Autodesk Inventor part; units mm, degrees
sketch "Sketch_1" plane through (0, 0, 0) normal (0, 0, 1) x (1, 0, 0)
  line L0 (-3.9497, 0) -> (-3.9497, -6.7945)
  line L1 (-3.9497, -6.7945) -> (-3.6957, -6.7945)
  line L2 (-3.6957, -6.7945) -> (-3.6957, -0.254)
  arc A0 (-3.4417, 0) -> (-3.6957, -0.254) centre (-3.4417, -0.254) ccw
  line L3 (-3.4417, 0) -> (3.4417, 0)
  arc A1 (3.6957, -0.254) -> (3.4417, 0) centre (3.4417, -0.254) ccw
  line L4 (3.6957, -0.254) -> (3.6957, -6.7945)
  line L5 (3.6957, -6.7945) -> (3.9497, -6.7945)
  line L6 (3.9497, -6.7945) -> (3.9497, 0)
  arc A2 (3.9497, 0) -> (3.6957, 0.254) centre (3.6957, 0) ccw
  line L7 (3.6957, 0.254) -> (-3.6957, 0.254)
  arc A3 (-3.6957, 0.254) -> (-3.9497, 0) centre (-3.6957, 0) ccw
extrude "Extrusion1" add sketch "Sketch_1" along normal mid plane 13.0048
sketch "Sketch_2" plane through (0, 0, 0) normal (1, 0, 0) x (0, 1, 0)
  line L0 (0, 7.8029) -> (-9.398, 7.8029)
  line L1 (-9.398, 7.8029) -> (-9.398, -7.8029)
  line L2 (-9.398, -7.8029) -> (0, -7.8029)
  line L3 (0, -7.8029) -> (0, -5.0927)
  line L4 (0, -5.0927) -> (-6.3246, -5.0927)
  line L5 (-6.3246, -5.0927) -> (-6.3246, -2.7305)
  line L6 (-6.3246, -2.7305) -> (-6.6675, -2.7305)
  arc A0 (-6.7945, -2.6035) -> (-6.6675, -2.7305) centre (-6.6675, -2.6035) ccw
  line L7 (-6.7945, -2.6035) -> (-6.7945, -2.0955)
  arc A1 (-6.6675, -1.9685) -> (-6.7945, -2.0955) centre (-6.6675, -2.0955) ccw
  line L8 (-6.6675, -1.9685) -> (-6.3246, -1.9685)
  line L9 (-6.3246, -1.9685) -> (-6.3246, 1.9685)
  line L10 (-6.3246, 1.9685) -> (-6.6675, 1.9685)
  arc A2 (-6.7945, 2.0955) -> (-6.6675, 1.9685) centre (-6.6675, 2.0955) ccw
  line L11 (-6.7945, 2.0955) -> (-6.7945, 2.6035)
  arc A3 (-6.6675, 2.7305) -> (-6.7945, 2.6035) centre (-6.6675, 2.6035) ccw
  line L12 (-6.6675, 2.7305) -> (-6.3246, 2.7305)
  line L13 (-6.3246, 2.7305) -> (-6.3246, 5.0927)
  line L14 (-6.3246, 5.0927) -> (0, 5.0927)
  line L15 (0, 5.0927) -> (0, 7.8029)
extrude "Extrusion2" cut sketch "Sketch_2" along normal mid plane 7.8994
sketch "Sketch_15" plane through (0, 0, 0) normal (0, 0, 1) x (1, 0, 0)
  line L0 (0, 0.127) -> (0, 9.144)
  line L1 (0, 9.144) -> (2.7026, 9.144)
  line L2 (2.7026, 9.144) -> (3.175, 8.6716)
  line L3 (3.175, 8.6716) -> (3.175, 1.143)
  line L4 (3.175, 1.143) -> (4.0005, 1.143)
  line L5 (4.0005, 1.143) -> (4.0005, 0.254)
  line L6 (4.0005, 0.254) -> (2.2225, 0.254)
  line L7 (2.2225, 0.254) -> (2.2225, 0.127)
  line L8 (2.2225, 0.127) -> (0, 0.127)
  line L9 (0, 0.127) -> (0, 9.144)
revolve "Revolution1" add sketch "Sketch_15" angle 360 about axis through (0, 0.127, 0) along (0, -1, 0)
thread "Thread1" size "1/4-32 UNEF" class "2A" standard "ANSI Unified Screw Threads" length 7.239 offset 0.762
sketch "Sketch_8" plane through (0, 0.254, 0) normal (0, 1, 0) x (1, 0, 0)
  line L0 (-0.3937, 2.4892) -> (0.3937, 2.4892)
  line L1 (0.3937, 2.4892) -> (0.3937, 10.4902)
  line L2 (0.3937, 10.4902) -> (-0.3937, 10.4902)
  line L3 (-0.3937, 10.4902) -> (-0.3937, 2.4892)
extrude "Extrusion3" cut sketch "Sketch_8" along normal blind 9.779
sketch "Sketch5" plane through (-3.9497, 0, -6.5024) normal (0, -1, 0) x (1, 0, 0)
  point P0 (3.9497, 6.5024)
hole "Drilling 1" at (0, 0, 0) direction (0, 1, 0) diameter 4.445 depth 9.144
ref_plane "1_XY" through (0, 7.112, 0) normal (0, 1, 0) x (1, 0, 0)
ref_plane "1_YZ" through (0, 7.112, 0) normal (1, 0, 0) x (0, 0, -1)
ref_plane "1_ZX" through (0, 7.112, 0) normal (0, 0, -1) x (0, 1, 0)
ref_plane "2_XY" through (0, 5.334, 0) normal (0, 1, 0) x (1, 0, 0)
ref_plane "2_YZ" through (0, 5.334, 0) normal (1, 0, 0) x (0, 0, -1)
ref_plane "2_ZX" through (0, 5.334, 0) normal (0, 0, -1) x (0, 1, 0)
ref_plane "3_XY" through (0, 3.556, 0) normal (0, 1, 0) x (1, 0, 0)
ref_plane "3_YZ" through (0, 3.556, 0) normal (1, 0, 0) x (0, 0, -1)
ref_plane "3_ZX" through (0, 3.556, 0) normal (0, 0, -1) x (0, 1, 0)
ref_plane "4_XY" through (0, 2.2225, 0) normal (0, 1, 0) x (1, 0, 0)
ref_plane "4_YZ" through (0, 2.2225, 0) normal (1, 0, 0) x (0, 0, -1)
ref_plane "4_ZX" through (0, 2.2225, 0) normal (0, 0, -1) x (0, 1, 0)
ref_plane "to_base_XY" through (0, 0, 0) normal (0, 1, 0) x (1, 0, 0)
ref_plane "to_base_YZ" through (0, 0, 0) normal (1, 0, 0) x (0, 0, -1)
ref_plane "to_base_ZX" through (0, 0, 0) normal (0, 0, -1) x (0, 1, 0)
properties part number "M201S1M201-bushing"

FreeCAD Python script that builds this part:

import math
import FreeCAD as App
import Part
import Sketcher
from FreeCAD import Vector
Q = App.Units.Quantity

doc = App.newDocument("Part")
body = doc.addObject("PartDesign::Body", "Body")

# Sketch on XY plane
sketch1 = doc.addObject("Sketcher::SketchObject", "Sketch")
body.addObject(sketch1)
sketch1.AttachmentSupport = (doc.XY_Plane, [""])
sketch1.MapMode = "FlatFace"
sketch1.addGeometry([
    Part.ArcOfCircle(Part.Circle(Vector(-3.7, 0, 0), Vector(0, 0, 1), 0.25), math.radians(90), math.radians(180)),  # 0
    Part.LineSegment(Vector(-3.95, 0, 0), Vector(-3.95, -6.79, 0)),  # 1
    Part.LineSegment(Vector(-3.95, -6.79, 0), Vector(-3.7, -6.79, 0)),  # 2
    Part.LineSegment(Vector(-3.7, -6.79, 0), Vector(-3.7, -0.25, 0)),  # 3
    Part.ArcOfCircle(Part.Circle(Vector(-3.44, -0.25, 0), Vector(0, 0, 1), 0.25), math.radians(90), math.radians(180)),  # 4
    Part.LineSegment(Vector(-3.44, 0, 0), Vector(3.44, 0, 0)),  # 5
    Part.ArcOfCircle(Part.Circle(Vector(3.44, -0.25, 0), Vector(0, 0, 1), 0.25), math.radians(0), math.radians(90)),  # 6
    Part.LineSegment(Vector(3.7, -0.25, 0), Vector(3.7, -6.79, 0)),  # 7
    Part.LineSegment(Vector(3.7, -6.79, 0), Vector(3.95, -6.79, 0)),  # 8
    Part.LineSegment(Vector(3.95, -6.79, 0), Vector(3.95, 0, 0)),  # 9
    Part.ArcOfCircle(Part.Circle(Vector(3.7, 0, 0), Vector(0, 0, 1), 0.25), math.radians(0), math.radians(90)),  # 10
    Part.LineSegment(Vector(3.7, 0.25, 0), Vector(-3.7, 0.25, 0)),  # 11
], False)
sketch1.addConstraint([
    Sketcher.Constraint("Tangent", 0, 2, 1, 1),
    Sketcher.Constraint("Coincident", 1, 2, 2, 1),
    Sketcher.Constraint("Coincident", 2, 2, 3, 1),
    Sketcher.Constraint("Tangent", 3, 2, 4, 2),
    Sketcher.Constraint("Tangent", 4, 1, 5, 1),
    Sketcher.Constraint("Tangent", 5, 2, 6, 2),
    Sketcher.Constraint("Tangent", 6, 1, 7, 1),
    Sketcher.Constraint("Coincident", 7, 2, 8, 1),
    Sketcher.Constraint("Coincident", 8, 2, 9, 1),
    Sketcher.Constraint("Tangent", 9, 2, 10, 1),
    Sketcher.Constraint("Tangent", 10, 2, 11, 1),
    Sketcher.Constraint("Tangent", 11, 2, 0, 1),
    Sketcher.Constraint("Vertical", 1),
    Sketcher.Constraint("Horizontal", 2),
    Sketcher.Constraint("Vertical", 3),
    Sketcher.Constraint("Horizontal", 5),
    Sketcher.Constraint("Vertical", 7),
    Sketcher.Constraint("Horizontal", 8),
    Sketcher.Constraint("Vertical", 9),
    Sketcher.Constraint("Horizontal", 11),
    Sketcher.Constraint("Equal", 0, 4),
    Sketcher.Constraint("Equal", 4, 6),
    Sketcher.Constraint("Equal", 6, 10),
    Sketcher.Constraint("Symmetric", 0, 3, 10, 3, -1, 1),
    Sketcher.Constraint("Symmetric", 4, 1, 5, 2, -1, 1),
    Sketcher.Constraint("Horizontal", 2, 2, 7, 2),
    Sketcher.Constraint("Vertical", 0, 3, 2, 2),
    Sketcher.Constraint("Radius", 0, Q("0.01 in")),
    Sketcher.Constraint("DistanceX", 5, 1, 5, 2, Q("0.271 in")),
    Sketcher.Constraint("DistanceY", 1, 2, 1, 1, Q("0.2675 in")),
])
pad1 = doc.addObject("PartDesign::Pad", "Pad")
body.addObject(pad1)
pad1.Profile = sketch1
pad1.Length = Q("0.512 in")
pad1.Midplane = True

# Sketch on YZ plane
sketch2 = doc.addObject("Sketcher::SketchObject", "Sketch001")
body.addObject(sketch2)
sketch2.AttachmentSupport = (doc.YZ_Plane, [""])
sketch2.MapMode = "FlatFace"
sketch2.addGeometry([
    Part.LineSegment(Vector(0, 5.09, 0), Vector(0, 7.8, 0)),  # 0
    Part.LineSegment(Vector(0, 7.8, 0), Vector(-9.4, 7.8, 0)),  # 1
    Part.LineSegment(Vector(-9.4, 7.8, 0), Vector(-9.4, -7.8, 0)),  # 2
    Part.LineSegment(Vector(-9.4, -7.8, 0), Vector(0, -7.8, 0)),  # 3
    Part.LineSegment(Vector(0, -7.8, 0), Vector(0, -5.09, 0)),  # 4
    Part.LineSegment(Vector(0, -5.09, 0), Vector(-6.32, -5.09, 0)),  # 5
    Part.LineSegment(Vector(-6.32, -5.09, 0), Vector(-6.32, -2.73, 0)),  # 6
    Part.LineSegment(Vector(-6.32, -2.73, 0), Vector(-6.67, -2.73, 0)),  # 7
    Part.ArcOfCircle(Part.Circle(Vector(-6.67, -2.6, 0), Vector(0, 0, 1), 0.13), math.radians(180), math.radians(270)),  # 8
    Part.LineSegment(Vector(-6.79, -2.6, 0), Vector(-6.79, -2.1, 0)),  # 9
    Part.ArcOfCircle(Part.Circle(Vector(-6.67, -2.1, 0), Vector(0, 0, 1), 0.13), math.radians(90), math.radians(180)),  # 10
    Part.LineSegment(Vector(-6.67, -1.97, 0), Vector(-6.32, -1.97, 0)),  # 11
    Part.LineSegment(Vector(-6.32, -1.97, 0), Vector(-6.32, 1.97, 0)),  # 12
    Part.LineSegment(Vector(-6.32, 1.97, 0), Vector(-6.67, 1.97, 0)),  # 13
    Part.ArcOfCircle(Part.Circle(Vector(-6.67, 2.1, 0), Vector(0, 0, 1), 0.13), math.radians(180), math.radians(270)),  # 14
    Part.LineSegment(Vector(-6.79, 2.1, 0), Vector(-6.79, 2.6, 0)),  # 15
    Part.ArcOfCircle(Part.Circle(Vector(-6.67, 2.6, 0), Vector(0, 0, 1), 0.13), math.radians(90), math.radians(180)),  # 16
    Part.LineSegment(Vector(-6.67, 2.73, 0), Vector(-6.32, 2.73, 0)),  # 17
    Part.LineSegment(Vector(-6.32, 2.73, 0), Vector(-6.32, 5.09, 0)),  # 18
    Part.LineSegment(Vector(-6.32, 5.09, 0), Vector(0, 5.09, 0)),  # 19
], False)
sketch2.addConstraint([
    Sketcher.Constraint("Coincident", 0, 2, 1, 1),
    Sketcher.Constraint("Coincident", 1, 2, 2, 1),
    Sketcher.Constraint("Coincident", 2, 2, 3, 1),
    Sketcher.Constraint("Coincident", 3, 2, 4, 1),
    Sketcher.Constraint("Coincident", 4, 2, 5, 1),
    Sketcher.Constraint("Coincident", 5, 2, 6, 1),
    Sketcher.Constraint("Coincident", 6, 2, 7, 1),
    Sketcher.Constraint("Tangent", 7, 2, 8, 2),
    Sketcher.Constraint("Tangent", 8, 1, 9, 1),
    Sketcher.Constraint("Tangent", 9, 2, 10, 2),
    Sketcher.Constraint("Tangent", 10, 1, 11, 1),
    Sketcher.Constraint("Coincident", 11, 2, 12, 1),
    Sketcher.Constraint("Coincident", 12, 2, 13, 1),
    Sketcher.Constraint("Tangent", 13, 2, 14, 2),
    Sketcher.Constraint("Tangent", 14, 1, 15, 1),
    Sketcher.Constraint("Tangent", 15, 2, 16, 2),
    Sketcher.Constraint("Tangent", 16, 1, 17, 1),
    Sketcher.Constraint("Coincident", 17, 2, 18, 1),
    Sketcher.Constraint("Coincident", 18, 2, 19, 1),
    Sketcher.Constraint("Coincident", 19, 2, 0, 1),
    Sketcher.Constraint("Vertical", 0),
    Sketcher.Constraint("Horizontal", 1),
    Sketcher.Constraint("Vertical", 2),
    Sketcher.Constraint("Horizontal", 3),
    Sketcher.Constraint("Vertical", 4),
    Sketcher.Constraint("Horizontal", 5),
    Sketcher.Constraint("Vertical", 6),
    Sketcher.Constraint("Horizontal", 7),
    Sketcher.Constraint("Vertical", 9),
    Sketcher.Constraint("Horizontal", 11),
    Sketcher.Constraint("Vertical", 12),
    Sketcher.Constraint("Horizontal", 13),
    Sketcher.Constraint("Vertical", 15),
    Sketcher.Constraint("Horizontal", 17),
    Sketcher.Constraint("Vertical", 18),
    Sketcher.Constraint("Horizontal", 19),
    Sketcher.Constraint("Equal", 8, 10),
    Sketcher.Constraint("Equal", 10, 14),
    Sketcher.Constraint("Equal", 14, 16),
    Sketcher.Constraint("Symmetric", 0, 2, 3, 2, -1, 1),
    Sketcher.Constraint("Symmetric", 10, 3, 14, 3, -1),
    Sketcher.Constraint("Symmetric", 6, 2, 17, 2, -1),
    Sketcher.Constraint("Symmetric", 4, 2, 19, 2, -1),
    Sketcher.Constraint("Vertical", 6, 2, 11, 2),
    Sketcher.Constraint("Radius", 8, Q("0.005 in")),
    Sketcher.Constraint("DistanceX", 1, 2, 1, 1, Q("0.37 in")),
    Sketcher.Constraint("DistanceY", 9, 1, 9, 2, Q("0.02 in")),
    Sketcher.Constraint("DistanceX", 5, 2, 5, 1, Q("0.249 in")),
    Sketcher.Constraint("DistanceY", 6, 1, 6, 2, Q("0.093 in")),
    Sketcher.Constraint("DistanceY", 12, 1, 12, 2, Q("0.155 in")),
    Sketcher.Constraint("DistanceX", 7, 2, 7, 1, Q("0.0135 in")),
    Sketcher.Constraint("DistanceY", 0, 1, 0, 2, Q("0.1067 in")),
])
pocket1 = doc.addObject("PartDesign::Pocket", "Pocket")
body.addObject(pocket1)
pocket1.Profile = sketch2
pocket1.Length = Q("0.311 in")
pocket1.Midplane = True

# Sketch on XY plane
sketch3 = doc.addObject("Sketcher::SketchObject", "Sketch002")
body.addObject(sketch3)
sketch3.AttachmentSupport = (doc.XY_Plane, [""])
sketch3.MapMode = "FlatFace"
sketch3.addGeometry([
    Part.LineSegment(Vector(0, 9.14, 0), Vector(0, 0.13, 0)),  # 0
    Part.LineSegment(Vector(0, 0.13, 0), Vector(2.22, 0.13, 0)),  # 1
    Part.LineSegment(Vector(2.22, 0.13, 0), Vector(2.22, 0.25, 0)),  # 2
    Part.LineSegment(Vector(2.22, 0.25, 0), Vector(4, 0.25, 0)),  # 3
    Part.LineSegment(Vector(4, 0.25, 0), Vector(4, 1.14, 0)),  # 4
    Part.LineSegment(Vector(4, 1.14, 0), Vector(3.17, 1.14, 0)),  # 5
    Part.LineSegment(Vector(3.17, 1.14, 0), Vector(3.17, 8.67, 0)),  # 6
    Part.LineSegment(Vector(3.17, 8.67, 0), Vector(2.7, 9.14, 0)),  # 7
    Part.LineSegment(Vector(2.7, 9.14, 0), Vector(0, 9.14, 0)),  # 8
], False)
sketch3.addConstraint([
    Sketcher.Constraint("Coincident", 0, 2, 1, 1),
    Sketcher.Constraint("Coincident", 1, 2, 2, 1),
    Sketcher.Constraint("Coincident", 2, 2, 3, 1),
    Sketcher.Constraint("Coincident", 3, 2, 4, 1),
    Sketcher.Constraint("Coincident", 4, 2, 5, 1),
    Sketcher.Constraint("Coincident", 5, 2, 6, 1),
    Sketcher.Constraint("Coincident", 6, 2, 7, 1),
    Sketcher.Constraint("Coincident", 7, 2, 8, 1),
    Sketcher.Constraint("Coincident", 8, 2, 0, 1),
    Sketcher.Constraint("Vertical", 0),
    Sketcher.Constraint("Horizontal", 1),
    Sketcher.Constraint("Vertical", 2),
    Sketcher.Constraint("Horizontal", 3),
    Sketcher.Constraint("Vertical", 4),
    Sketcher.Constraint("Horizontal", 5),
    Sketcher.Constraint("Vertical", 6),
    Sketcher.Constraint("Horizontal", 8),
    Sketcher.Constraint("PointOnObject", 0, 2, -2),
    Sketcher.Constraint("Angle", 7, Q("135 deg")),
    Sketcher.Constraint("DistanceX", 3, 1, 3, 2, Q("0.07 in")),
    Sketcher.Constraint("DistanceY", 0, 2, 0, 1, Q("0.355 in")),
    Sketcher.Constraint("DistanceY", 2, 1, 2, 2, Q("0.005 in")),
    Sketcher.Constraint("DistanceY", 4, 1, 4, 2, Q("0.035 in")),
    Sketcher.Constraint("DistanceY", -1, 1, 2, 2, Q("0.01 in")),
    Sketcher.Constraint("DistanceX", 1, 1, 1, 2, Q("0.0875 in")),
    Sketcher.Constraint("DistanceX", 5, 2, 5, 1, Q("0.0325 in")),
    Sketcher.Constraint("DistanceX", 8, 2, 8, 1, Q("0.1064 in")),
])
revolution = doc.addObject("PartDesign::Revolution", "Revolution")
body.addObject(revolution)
revolution.Profile = sketch3
revolution.ReferenceAxis = (sketch3, ["V_Axis"])
revolution.Angle = 360

# Sketch on XZ plane
sketch4 = doc.addObject("Sketcher::SketchObject", "Sketch003")
body.addObject(sketch4)
sketch4.AttachmentSupport = (doc.XZ_Plane, [""])
sketch4.MapMode = "FlatFace"
sketch4.AttachmentOffset = App.Placement(Vector(0, 0, -0.01 * 25.4), App.Rotation())
sketch4.addGeometry([
    Part.LineSegment(Vector(-0.4, -10.5, 0), Vector(-0.4, -2.5, 0)),
    Part.LineSegment(Vector(-0.4, -2.5, 0), Vector(0.4, -2.5, 0)),
    Part.LineSegment(Vector(0.4, -2.5, 0), Vector(0.4, -10.5, 0)),
    Part.LineSegment(Vector(0.4, -10.5, 0), Vector(-0.4, -10.5, 0)),
], False)
sketch4.addConstraint([
    Sketcher.Constraint("Coincident", 0, 2, 1, 1),
    Sketcher.Constraint("Coincident", 1, 2, 2, 1),
    Sketcher.Constraint("Coincident", 2, 2, 3, 1),
    Sketcher.Constraint("Coincident", 3, 2, 0, 1),
    Sketcher.Constraint("Vertical", 0),
    Sketcher.Constraint("Horizontal", 1),
    Sketcher.Constraint("Vertical", 2),
    Sketcher.Constraint("Horizontal", 3),
    Sketcher.Constraint("DistanceX", 1, 1, 1, 2, Q("0.031 in")),
    Sketcher.Constraint("DistanceY", 0, 1, 0, 2, Q("0.315 in")),
    Sketcher.Constraint("DistanceY", 0, 2, -1, 1, Q("0.098 in")),
    Sketcher.Constraint("DistanceX", 0, 2, -1, 1, Q("0.0155 in")),
])
pocket2 = doc.addObject("PartDesign::Pocket", "Pocket001")
body.addObject(pocket2)
pocket2.Profile = sketch4
pocket2.Length = Q("0.385 in")

# Sketch on XZ plane
sketch5 = doc.addObject("Sketcher::SketchObject", "Sketch004")
body.addObject(sketch5)
sketch5.AttachmentSupport = (doc.XZ_Plane, [""])
sketch5.MapMode = "FlatFace"
sketch5.addGeometry(Part.Circle(Vector(0, 0, 0), Vector(0, 0, 1), 2.2), False)
sketch5.addConstraint([
    Sketcher.Constraint("Coincident", 0, 3, -1, 1),
    Sketcher.Constraint("Diameter", 0, Q("0.175 in")),
])
doc.recompute()
hole = doc.addObject("PartDesign::Hole", "Hole")
body.addObject(hole)
hole.Profile = sketch5
hole.ThreadType = "None"
hole.Diameter = Q("0.175 in")
hole.DepthType = "Dimension"
hole.Depth = Q("0.36 in")
hole.DrillPoint = "Flat"

doc.recompute()
